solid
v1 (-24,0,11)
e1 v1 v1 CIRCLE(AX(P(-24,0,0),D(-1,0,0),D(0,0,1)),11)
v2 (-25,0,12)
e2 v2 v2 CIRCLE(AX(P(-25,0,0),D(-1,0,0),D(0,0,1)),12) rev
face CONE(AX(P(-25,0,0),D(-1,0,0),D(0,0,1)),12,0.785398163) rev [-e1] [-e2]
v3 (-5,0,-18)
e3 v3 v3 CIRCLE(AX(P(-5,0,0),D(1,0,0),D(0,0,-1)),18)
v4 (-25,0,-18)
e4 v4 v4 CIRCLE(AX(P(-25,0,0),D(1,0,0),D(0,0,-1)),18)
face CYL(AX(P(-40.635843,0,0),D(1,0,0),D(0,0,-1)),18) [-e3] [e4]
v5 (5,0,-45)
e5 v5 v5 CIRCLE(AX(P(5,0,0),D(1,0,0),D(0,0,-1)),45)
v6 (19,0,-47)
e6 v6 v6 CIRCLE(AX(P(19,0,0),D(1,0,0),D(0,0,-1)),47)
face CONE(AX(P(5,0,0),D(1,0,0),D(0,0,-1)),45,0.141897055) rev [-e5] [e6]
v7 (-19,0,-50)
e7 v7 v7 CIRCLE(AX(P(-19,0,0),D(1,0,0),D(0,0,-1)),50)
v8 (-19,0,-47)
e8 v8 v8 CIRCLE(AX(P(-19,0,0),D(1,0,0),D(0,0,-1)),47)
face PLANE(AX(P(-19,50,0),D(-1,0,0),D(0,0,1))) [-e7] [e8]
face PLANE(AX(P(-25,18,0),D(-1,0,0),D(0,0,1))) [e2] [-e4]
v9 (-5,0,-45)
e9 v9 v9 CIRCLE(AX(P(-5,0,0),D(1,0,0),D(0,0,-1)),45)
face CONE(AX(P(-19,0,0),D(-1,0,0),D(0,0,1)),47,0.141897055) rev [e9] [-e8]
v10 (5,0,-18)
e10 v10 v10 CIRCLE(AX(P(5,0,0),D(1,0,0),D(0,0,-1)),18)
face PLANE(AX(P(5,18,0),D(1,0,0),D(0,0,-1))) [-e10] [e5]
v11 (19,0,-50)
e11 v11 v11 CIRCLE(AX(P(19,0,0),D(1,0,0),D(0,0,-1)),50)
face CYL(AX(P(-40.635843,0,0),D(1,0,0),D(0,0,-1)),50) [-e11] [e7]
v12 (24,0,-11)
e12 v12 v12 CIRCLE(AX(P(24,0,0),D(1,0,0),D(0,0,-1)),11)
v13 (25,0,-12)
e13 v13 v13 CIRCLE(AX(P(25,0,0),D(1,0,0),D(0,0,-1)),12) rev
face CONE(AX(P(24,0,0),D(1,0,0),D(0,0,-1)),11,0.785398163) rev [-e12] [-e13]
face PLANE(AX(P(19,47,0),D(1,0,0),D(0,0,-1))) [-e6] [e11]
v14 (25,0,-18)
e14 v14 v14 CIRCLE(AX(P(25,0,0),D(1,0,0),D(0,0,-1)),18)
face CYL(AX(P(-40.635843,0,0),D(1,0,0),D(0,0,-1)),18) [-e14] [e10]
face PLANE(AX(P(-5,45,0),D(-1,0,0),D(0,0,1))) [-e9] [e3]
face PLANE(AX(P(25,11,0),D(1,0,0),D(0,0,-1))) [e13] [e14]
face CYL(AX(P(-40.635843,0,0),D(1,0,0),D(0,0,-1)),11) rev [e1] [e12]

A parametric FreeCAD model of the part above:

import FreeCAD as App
import Part
import Sketcher
from FreeCAD import Vector
Q = App.Units.Quantity


def edges_at(feature, points):
    """Names of the edges that pass closest to the given points."""
    edges = feature.Shape.Edges
    near = lambda p: min(range(len(edges)), key=lambda i: edges[i].distToShape(Part.Vertex(*p))[0])
    return sorted({f"Edge{near(p) + 1}" for p in points})

doc = App.newDocument("Part")
body = doc.addObject("PartDesign::Body", "Body")

# Sketch on XY plane
sketch1 = body.newObject("Sketcher::SketchObject", "Sketch")
sketch1.AttachmentSupport = (doc.getObject("XY_Plane"), [""])
sketch1.MapMode = "FlatFace"
sketch1.addGeometry([
    Part.LineSegment(Vector(-25, 11, 0), Vector(25, 11, 0)),  # 0
    Part.LineSegment(Vector(25, 11, 0), Vector(25, 18, 0)),  # 1
    Part.LineSegment(Vector(25, 18, 0), Vector(5, 18, 0)),  # 2
    Part.LineSegment(Vector(5, 18, 0), Vector(5, 45, 0)),  # 3
    Part.LineSegment(Vector(5, 45, 0), Vector(19, 47, 0)),  # 4
    Part.LineSegment(Vector(19, 47, 0), Vector(19, 50, 0)),  # 5
    Part.LineSegment(Vector(19, 50, 0), Vector(-19, 50, 0)),  # 6
    Part.LineSegment(Vector(-19, 50, 0), Vector(-19, 47, 0)),  # 7
    Part.LineSegment(Vector(-19, 47, 0), Vector(-5, 45, 0)),  # 8
    Part.LineSegment(Vector(-5, 45, 0), Vector(-5, 18, 0)),  # 9
    Part.LineSegment(Vector(-5, 18, 0), Vector(-25, 18, 0)),  # 10
    Part.LineSegment(Vector(-25, 18, 0), Vector(-25, 11, 0)),  # 11
], False)
sketch1.addConstraint([
    Sketcher.Constraint("Coincident", 0, 2, 1, 1),
    Sketcher.Constraint("Coincident", 1, 2, 2, 1),
    Sketcher.Constraint("Coincident", 2, 2, 3, 1),
    Sketcher.Constraint("Coincident", 3, 2, 4, 1),
    Sketcher.Constraint("Coincident", 4, 2, 5, 1),
    Sketcher.Constraint("Coincident", 5, 2, 6, 1),
    Sketcher.Constraint("Coincident", 6, 2, 7, 1),
    Sketcher.Constraint("Coincident", 7, 2, 8, 1),
    Sketcher.Constraint("Coincident", 8, 2, 9, 1),
    Sketcher.Constraint("Coincident", 9, 2, 10, 1),
    Sketcher.Constraint("Coincident", 10, 2, 11, 1),
    Sketcher.Constraint("Coincident", 11, 2, 0, 1),
    Sketcher.Constraint("Horizontal", 0),
    Sketcher.Constraint("Vertical", 1),
    Sketcher.Constraint("Horizontal", 2),
    Sketcher.Constraint("Vertical", 3),
    Sketcher.Constraint("Vertical", 5),
    Sketcher.Constraint("Horizontal", 6),
    Sketcher.Constraint("Vertical", 7),
    Sketcher.Constraint("Vertical", 9),
    Sketcher.Constraint("Horizontal", 10),
    Sketcher.Constraint("Vertical", 11),
    Sketcher.Constraint("Symmetric", 4, 2, 7, 2, -2),
    Sketcher.Constraint("Symmetric", 3, 2, 8, 2, -2),
    Sketcher.Constraint("Symmetric", 1, 2, 10, 2, -2),
    Sketcher.Constraint("DistanceX", 0, 1, 0, 2, Q("50 mm")),
    Sketcher.Constraint("DistanceX", 2, 2, 2, 1, Q("20 mm")),
    Sketcher.Constraint("DistanceX", 6, 2, 6, 1, Q("38 mm")),
    Sketcher.Constraint("DistanceY", 1, 1, 1, 2, Q("7 mm")),
    Sketcher.Constraint("DistanceY", 3, 1, 3, 2, Q("27 mm")),
    Sketcher.Constraint("DistanceY", 5, 1, 5, 2, Q("3 mm")),
    Sketcher.Constraint("DistanceY", -1, 1, 0, 2, Q("11 mm")),
    Sketcher.Constraint("DistanceY", -1, 1, 4, 2, Q("47 mm")),
])
revolution = body.newObject("PartDesign::Revolution", "Revolution")
revolution.Profile = sketch1
revolution.ReferenceAxis = (sketch1, ["H_Axis"])
revolution.Angle = 360
doc.recompute()

chamfer = body.newObject("PartDesign::Chamfer", "Chamfer")
chamfer.Base = (revolution, edges_at(revolution, [(-25, 0, 11), (25, 0, 11)]))
chamfer.Size = 1

doc.recompute()
